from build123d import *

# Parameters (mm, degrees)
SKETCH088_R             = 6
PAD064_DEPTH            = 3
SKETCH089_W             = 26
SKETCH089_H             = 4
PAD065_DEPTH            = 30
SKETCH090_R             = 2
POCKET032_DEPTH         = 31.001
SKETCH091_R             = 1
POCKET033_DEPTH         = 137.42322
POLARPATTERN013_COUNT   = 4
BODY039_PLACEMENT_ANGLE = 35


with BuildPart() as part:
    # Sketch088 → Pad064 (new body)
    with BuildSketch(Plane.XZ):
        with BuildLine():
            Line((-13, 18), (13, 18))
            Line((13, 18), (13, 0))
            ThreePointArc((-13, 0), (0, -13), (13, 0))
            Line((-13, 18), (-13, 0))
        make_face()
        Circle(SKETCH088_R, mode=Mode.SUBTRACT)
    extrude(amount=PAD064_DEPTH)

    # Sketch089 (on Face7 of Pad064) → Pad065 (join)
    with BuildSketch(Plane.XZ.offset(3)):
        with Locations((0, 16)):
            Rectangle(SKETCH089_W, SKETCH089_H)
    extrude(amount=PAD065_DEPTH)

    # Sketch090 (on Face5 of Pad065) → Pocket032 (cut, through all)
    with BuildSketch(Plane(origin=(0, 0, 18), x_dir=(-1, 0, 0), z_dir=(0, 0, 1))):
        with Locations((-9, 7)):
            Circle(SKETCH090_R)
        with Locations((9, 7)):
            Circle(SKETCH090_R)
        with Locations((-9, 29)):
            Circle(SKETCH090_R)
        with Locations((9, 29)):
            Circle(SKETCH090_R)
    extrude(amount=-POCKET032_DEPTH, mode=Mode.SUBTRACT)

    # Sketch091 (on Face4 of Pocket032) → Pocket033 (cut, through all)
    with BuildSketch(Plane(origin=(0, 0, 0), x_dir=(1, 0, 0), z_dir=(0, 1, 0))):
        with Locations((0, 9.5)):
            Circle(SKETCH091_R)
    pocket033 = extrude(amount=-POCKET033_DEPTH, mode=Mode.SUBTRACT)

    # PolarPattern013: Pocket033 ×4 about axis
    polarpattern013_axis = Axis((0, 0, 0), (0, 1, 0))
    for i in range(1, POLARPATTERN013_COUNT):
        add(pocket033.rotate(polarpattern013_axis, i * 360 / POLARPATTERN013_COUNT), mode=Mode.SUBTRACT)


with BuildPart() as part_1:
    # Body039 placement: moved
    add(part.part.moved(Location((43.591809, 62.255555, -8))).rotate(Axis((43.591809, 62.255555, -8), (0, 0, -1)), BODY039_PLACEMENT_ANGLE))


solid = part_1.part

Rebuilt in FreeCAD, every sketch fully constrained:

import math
import FreeCAD as App
import Part
import Sketcher

doc = App.newDocument("Part")
body = doc.addObject("PartDesign::Body", "Body")

sketch1 = body.newObject("Sketcher::SketchObject", "Sketch")
sketch1.AttachmentSupport = (doc.getObject("XZ_Plane"), [""])
sketch1.MapMode = "FlatFace"
sketch1.addGeometry(Part.LineSegment(App.Vector(13, 18, 0), App.Vector(-13, 18, 0)), False)
sketch1.addGeometry(Part.LineSegment(App.Vector(-13, 18, 0), App.Vector(-13, 0, 0)), False)
sketch1.addGeometry(Part.ArcOfCircle(Part.Circle(App.Vector(0, 0, 0), App.Vector(0, 0, 1), 13), math.radians(180), math.radians(360)), False)
sketch1.addGeometry(Part.LineSegment(App.Vector(13, 0, 0), App.Vector(13, 18, 0)), False)
sketch1.addGeometry(Part.Circle(App.Vector(0, 0, 0), App.Vector(0, 0, 1), 6), False)
sketch1.addConstraint(Sketcher.Constraint("Coincident", 0, 2, 1, 1))
sketch1.addConstraint(Sketcher.Constraint("Tangent", 1, 2, 2, 1))
sketch1.addConstraint(Sketcher.Constraint("Tangent", 2, 2, 3, 1))
sketch1.addConstraint(Sketcher.Constraint("Coincident", 3, 2, 0, 1))
sketch1.addConstraint(Sketcher.Constraint("Horizontal", 0))
sketch1.addConstraint(Sketcher.Constraint("Vertical", 1))
sketch1.addConstraint(Sketcher.Constraint("Vertical", 3))
sketch1.addConstraint(Sketcher.Constraint("Coincident", 2, 3, -1, 1))
sketch1.addConstraint(Sketcher.Constraint("Coincident", 4, 3, -1, 1))
sketch1.addConstraint(Sketcher.Constraint("Diameter", 4, 12.0))
sketch1.addConstraint(Sketcher.Constraint("Radius", 2, 13.0))
sketch1.addConstraint(Sketcher.Constraint("DistanceY", 1, 2, 1, 1, 18.0))
pad1 = body.newObject("PartDesign::Pad", "Pad")
pad1.Profile = sketch1
pad1.Length = 3

sketch2 = body.newObject("Sketcher::SketchObject", "Sketch001")
sketch2.AttachmentSupport = (doc.getObject("XZ_Plane"), [""])
sketch2.MapMode = "FlatFace"
sketch2.AttachmentOffset = App.Placement(App.Vector(0, 0, 3), App.Rotation())
sketch2.addGeometry(Part.LineSegment(App.Vector(-13, 18, 0), App.Vector(-13, 14, 0)), False)
sketch2.addGeometry(Part.LineSegment(App.Vector(-13, 14, 0), App.Vector(13, 14, 0)), False)
sketch2.addGeometry(Part.LineSegment(App.Vector(13, 14, 0), App.Vector(13, 18, 0)), False)
sketch2.addGeometry(Part.LineSegment(App.Vector(13, 18, 0), App.Vector(-13, 18, 0)), False)
sketch2.addConstraint(Sketcher.Constraint("Coincident", 0, 2, 1, 1))
sketch2.addConstraint(Sketcher.Constraint("Coincident", 1, 2, 2, 1))
sketch2.addConstraint(Sketcher.Constraint("Coincident", 2, 2, 3, 1))
sketch2.addConstraint(Sketcher.Constraint("Coincident", 3, 2, 0, 1))
sketch2.addConstraint(Sketcher.Constraint("Vertical", 0))
sketch2.addConstraint(Sketcher.Constraint("Horizontal", 1))
sketch2.addConstraint(Sketcher.Constraint("Vertical", 2))
sketch2.addConstraint(Sketcher.Constraint("Horizontal", 3))
sketch2.addConstraint(Sketcher.Constraint("DistanceX", 1, 1, 1, 2, 26.0))
sketch2.addConstraint(Sketcher.Constraint("DistanceY", 0, 2, 0, 1, 4.0))
sketch2.addConstraint(Sketcher.Constraint("DistanceX", 0, 2, -1, 1, 13.0))
sketch2.addConstraint(Sketcher.Constraint("DistanceY", -1, 1, 0, 2, 14.0))
pad2 = body.newObject("PartDesign::Pad", "Pad001")
pad2.Profile = sketch2
pad2.Length = 30

sketch3 = body.newObject("Sketcher::SketchObject", "Sketch002")
sketch3.AttachmentSupport = (doc.getObject("XY_Plane"), [""])
sketch3.MapMode = "FlatFace"
sketch3.AttachmentOffset = App.Placement(App.Vector(0, 0, 18), App.Rotation())
sketch3.addGeometry(Part.Circle(App.Vector(9, -7, 0), App.Vector(0, 0, 1), 2), False)
sketch3.addGeometry(Part.Circle(App.Vector(-9, -7, 0), App.Vector(0, 0, 1), 2), False)
sketch3.addGeometry(Part.Circle(App.Vector(9, -29, 0), App.Vector(0, 0, 1), 2), False)
sketch3.addGeometry(Part.Circle(App.Vector(-9, -29, 0), App.Vector(0, 0, 1), 2), False)
sketch3.addConstraint(Sketcher.Constraint("Equal", 0, 1))
sketch3.addConstraint(Sketcher.Constraint("Equal", 1, 2))
sketch3.addConstraint(Sketcher.Constraint("Equal", 2, 3))
sketch3.addConstraint(Sketcher.Constraint("Symmetric", 0, 3, 1, 3, -2))
sketch3.addConstraint(Sketcher.Constraint("Symmetric", 2, 3, 3, 3, -2))
sketch3.addConstraint(Sketcher.Constraint("Vertical", 0, 3, 2, 3))
sketch3.addConstraint(Sketcher.Constraint("Diameter", 0, 4.0))
sketch3.addConstraint(Sketcher.Constraint("DistanceX", -1, 1, 0, 3, 9.0))
sketch3.addConstraint(Sketcher.Constraint("DistanceY", 0, 3, -1, 1, 7.0))
sketch3.addConstraint(Sketcher.Constraint("DistanceY", 2, 3, -1, 1, 29.0))
pocket1 = body.newObject("PartDesign::Pocket", "Pocket")
pocket1.Profile = sketch3
pocket1.Type = "ThroughAll"

sketch4 = body.newObject("Sketcher::SketchObject", "Sketch003")
sketch4.AttachmentSupport = (doc.getObject("XZ_Plane"), [""])
sketch4.MapMode = "FlatFace"
sketch4.addGeometry(Part.Circle(App.Vector(0, -9.5, 0), App.Vector(0, 0, 1), 1), False)
sketch4.addConstraint(Sketcher.Constraint("PointOnObject", 0, 3, -2))
sketch4.addConstraint(Sketcher.Constraint("Diameter", 0, 2.0))
sketch4.addConstraint(Sketcher.Constraint("DistanceY", 0, 3, -1, 1, 9.5))
pocket2 = body.newObject("PartDesign::Pocket", "Pocket001")
pocket2.Profile = sketch4
pocket2.Type = "ThroughAll"
pocket2.Reversed = True
doc.recompute()

polarpattern = body.newObject("PartDesign::PolarPattern", "PolarPattern")
polarpattern.Originals = [pocket2]
polarpattern.Axis = (doc.getObject("Y_Axis"), [""])
polarpattern.Angle = 360
polarpattern.Occurrences = 4
body.Tip = polarpattern
body2 = doc.addObject("PartDesign::Body", "Body001")
doc.recompute()

body.Placement = App.Placement(App.Vector(43.591809, 62.255555, -8), App.Rotation(App.Vector(0, 0, -1), 35))
boolean = body2.newObject("PartDesign::Boolean", "Boolean")
boolean.Type = "Fuse"
boolean.addObjects([body])

doc.recompute()
